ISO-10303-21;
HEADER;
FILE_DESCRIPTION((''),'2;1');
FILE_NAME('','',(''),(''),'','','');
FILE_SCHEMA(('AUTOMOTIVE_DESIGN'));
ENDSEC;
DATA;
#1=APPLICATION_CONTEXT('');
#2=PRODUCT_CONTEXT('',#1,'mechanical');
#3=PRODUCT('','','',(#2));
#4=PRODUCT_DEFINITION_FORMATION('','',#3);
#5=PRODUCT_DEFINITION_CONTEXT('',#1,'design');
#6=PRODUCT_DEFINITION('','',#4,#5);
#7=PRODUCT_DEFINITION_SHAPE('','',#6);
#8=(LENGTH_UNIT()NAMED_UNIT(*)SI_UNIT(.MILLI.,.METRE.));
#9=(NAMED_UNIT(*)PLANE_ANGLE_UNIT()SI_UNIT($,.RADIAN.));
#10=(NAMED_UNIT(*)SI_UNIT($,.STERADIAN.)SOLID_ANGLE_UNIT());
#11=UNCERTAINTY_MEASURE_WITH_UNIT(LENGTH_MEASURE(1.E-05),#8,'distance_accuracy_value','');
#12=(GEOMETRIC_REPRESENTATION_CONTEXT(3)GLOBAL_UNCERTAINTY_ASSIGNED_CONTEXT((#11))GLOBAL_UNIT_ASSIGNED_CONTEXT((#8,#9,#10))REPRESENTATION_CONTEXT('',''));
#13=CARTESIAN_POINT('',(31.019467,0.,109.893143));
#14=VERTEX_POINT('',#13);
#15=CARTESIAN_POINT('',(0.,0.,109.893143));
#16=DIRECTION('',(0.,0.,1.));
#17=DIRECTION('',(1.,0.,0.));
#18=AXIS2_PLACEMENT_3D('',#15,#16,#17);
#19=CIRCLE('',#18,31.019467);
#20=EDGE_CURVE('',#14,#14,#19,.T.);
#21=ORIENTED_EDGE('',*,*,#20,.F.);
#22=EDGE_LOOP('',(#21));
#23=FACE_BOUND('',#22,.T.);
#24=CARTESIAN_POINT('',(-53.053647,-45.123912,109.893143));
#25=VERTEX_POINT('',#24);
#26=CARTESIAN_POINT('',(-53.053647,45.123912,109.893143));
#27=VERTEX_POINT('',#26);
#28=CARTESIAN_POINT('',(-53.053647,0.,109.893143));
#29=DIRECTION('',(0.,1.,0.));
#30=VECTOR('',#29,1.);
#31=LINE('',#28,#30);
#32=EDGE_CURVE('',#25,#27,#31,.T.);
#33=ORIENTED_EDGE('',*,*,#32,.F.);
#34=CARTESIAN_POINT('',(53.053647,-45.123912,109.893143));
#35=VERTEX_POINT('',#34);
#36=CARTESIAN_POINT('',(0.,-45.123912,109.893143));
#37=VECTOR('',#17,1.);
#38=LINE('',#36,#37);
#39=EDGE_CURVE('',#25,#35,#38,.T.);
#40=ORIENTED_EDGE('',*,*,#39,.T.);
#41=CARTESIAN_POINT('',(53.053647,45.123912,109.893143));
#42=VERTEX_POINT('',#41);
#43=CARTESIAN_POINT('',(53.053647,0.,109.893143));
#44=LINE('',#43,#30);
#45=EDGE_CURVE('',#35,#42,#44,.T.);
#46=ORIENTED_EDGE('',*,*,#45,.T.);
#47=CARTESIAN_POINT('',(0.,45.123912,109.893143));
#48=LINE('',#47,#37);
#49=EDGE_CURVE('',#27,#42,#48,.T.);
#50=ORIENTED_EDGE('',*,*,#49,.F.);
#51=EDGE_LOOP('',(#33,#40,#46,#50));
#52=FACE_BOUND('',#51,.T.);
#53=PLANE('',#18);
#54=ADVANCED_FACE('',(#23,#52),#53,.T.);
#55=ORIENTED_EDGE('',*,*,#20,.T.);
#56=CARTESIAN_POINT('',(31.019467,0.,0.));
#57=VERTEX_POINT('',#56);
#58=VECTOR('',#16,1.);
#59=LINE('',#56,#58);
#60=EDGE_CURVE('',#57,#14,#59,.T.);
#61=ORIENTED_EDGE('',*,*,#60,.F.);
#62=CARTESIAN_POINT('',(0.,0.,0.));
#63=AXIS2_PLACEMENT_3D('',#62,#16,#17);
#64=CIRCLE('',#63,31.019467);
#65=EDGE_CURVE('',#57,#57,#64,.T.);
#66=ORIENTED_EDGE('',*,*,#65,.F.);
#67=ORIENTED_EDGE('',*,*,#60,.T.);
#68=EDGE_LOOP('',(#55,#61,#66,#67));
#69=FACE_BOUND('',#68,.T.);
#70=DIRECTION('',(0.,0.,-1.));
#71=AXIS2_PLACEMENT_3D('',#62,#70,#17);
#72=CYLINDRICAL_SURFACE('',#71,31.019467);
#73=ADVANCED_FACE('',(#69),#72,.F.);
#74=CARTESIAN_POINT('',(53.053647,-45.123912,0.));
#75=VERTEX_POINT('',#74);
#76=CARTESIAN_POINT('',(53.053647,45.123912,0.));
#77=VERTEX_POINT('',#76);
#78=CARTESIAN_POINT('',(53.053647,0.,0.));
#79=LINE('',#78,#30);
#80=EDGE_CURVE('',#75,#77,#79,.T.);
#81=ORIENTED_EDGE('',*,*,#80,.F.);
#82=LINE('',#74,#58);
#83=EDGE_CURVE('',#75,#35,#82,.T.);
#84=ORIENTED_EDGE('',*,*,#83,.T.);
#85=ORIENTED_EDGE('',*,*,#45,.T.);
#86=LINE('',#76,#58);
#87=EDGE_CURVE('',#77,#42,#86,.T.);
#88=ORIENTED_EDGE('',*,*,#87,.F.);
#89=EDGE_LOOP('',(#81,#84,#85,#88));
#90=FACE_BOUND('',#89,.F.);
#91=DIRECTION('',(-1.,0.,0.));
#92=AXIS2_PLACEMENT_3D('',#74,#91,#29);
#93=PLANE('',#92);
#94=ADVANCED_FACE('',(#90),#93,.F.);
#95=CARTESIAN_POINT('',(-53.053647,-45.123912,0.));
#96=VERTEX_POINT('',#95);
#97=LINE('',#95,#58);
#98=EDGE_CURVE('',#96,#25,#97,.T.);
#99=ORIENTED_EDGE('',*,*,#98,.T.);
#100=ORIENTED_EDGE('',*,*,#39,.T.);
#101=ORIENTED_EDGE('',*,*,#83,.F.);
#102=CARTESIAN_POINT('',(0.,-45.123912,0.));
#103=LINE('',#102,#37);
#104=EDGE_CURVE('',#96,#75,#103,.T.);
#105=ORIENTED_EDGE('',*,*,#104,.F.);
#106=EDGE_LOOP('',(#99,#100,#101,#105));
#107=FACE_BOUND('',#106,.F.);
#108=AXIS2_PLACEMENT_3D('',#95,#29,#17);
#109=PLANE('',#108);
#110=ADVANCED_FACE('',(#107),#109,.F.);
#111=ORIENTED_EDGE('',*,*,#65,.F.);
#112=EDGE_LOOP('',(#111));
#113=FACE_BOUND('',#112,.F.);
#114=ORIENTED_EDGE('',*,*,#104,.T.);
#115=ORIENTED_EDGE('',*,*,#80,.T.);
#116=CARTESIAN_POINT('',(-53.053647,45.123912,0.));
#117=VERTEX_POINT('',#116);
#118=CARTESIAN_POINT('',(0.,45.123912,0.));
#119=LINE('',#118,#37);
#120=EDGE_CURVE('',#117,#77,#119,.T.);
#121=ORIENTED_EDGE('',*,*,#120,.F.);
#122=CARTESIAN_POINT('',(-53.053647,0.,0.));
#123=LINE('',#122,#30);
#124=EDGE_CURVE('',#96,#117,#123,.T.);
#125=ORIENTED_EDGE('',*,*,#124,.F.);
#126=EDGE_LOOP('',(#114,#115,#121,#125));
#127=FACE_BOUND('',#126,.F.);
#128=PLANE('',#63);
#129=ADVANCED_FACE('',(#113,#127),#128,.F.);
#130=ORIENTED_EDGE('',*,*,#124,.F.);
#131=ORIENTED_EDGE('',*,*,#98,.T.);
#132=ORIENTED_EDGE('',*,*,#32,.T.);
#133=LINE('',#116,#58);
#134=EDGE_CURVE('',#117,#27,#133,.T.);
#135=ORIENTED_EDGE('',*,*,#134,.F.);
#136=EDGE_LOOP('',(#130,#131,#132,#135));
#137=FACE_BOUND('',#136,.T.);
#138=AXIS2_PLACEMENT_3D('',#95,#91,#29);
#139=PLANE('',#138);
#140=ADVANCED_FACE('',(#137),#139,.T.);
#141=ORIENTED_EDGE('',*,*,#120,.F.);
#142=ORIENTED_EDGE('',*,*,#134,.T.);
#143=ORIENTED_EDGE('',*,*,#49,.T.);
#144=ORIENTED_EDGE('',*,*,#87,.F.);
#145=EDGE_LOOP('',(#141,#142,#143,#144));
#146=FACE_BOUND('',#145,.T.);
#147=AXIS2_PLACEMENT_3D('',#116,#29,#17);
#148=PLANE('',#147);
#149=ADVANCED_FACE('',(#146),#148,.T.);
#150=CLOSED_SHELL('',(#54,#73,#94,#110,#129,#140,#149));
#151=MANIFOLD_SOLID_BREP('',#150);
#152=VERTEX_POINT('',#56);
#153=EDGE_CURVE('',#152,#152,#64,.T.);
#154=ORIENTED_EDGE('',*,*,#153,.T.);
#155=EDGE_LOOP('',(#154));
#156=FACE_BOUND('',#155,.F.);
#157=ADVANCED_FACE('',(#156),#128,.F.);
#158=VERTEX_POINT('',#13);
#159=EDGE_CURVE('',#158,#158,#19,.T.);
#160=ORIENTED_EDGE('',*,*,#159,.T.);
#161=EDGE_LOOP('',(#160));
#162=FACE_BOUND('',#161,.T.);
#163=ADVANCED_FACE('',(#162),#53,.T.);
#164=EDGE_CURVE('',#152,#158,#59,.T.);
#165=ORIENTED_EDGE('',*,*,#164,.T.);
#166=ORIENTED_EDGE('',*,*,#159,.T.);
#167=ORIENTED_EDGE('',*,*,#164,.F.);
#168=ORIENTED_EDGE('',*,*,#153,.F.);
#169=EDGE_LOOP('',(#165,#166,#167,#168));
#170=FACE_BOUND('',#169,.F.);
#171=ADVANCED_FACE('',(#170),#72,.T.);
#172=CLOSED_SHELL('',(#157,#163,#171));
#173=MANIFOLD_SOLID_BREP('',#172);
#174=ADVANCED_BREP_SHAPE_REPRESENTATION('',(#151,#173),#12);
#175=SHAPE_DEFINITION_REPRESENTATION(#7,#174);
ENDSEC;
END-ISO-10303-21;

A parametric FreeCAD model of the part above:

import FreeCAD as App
import Part
import Sketcher
from FreeCAD import Vector
Q = App.Units.Quantity

doc = App.newDocument("Part")
body = doc.addObject("PartDesign::Body", "Body")

sketch1 = body.newObject("Sketcher::SketchObject", "Sketch")
sketch1.AttachmentSupport = (doc.getObject("XY_Plane"), [""])
sketch1.MapMode = "FlatFace"
sketch1.addGeometry(Part.Circle(Vector(0, 0, 0), Vector(0, 0, 1), 31), False)
sketch1.addConstraint(Sketcher.Constraint("Coincident", 0, 3, -1, 1))
sketch1.addConstraint(Sketcher.Constraint("Diameter", 0, Q("62.038934 mm")))
pad1 = body.newObject("PartDesign::Pad", "Pad")
pad1.Profile = sketch1
pad1.Length = 109.893143
body2 = doc.addObject("PartDesign::Body", "Body001")

sketch2 = body2.newObject("Sketcher::SketchObject", "Sketch001")
sketch2.AttachmentSupport = (doc.getObject("XY_Plane001"), [""])
sketch2.MapMode = "FlatFace"
sketch2.addGeometry(Part.LineSegment(Vector(-53, 45, 0), Vector(-53, -45, 0)), False)
sketch2.addGeometry(Part.LineSegment(Vector(-53, -45, 0), Vector(53, -45, 0)), False)
sketch2.addGeometry(Part.LineSegment(Vector(53, -45, 0), Vector(53, 45, 0)), False)
sketch2.addGeometry(Part.LineSegment(Vector(53, 45, 0), Vector(-53, 45, 0)), False)
sketch2.addGeometry(Part.Circle(Vector(0, 0, 0), Vector(0, 0, 1), 31), False)
sketch2.addConstraint(Sketcher.Constraint("Coincident", 0, 2, 1, 1))
sketch2.addConstraint(Sketcher.Constraint("Coincident", 1, 2, 2, 1))
sketch2.addConstraint(Sketcher.Constraint("Coincident", 2, 2, 3, 1))
sketch2.addConstraint(Sketcher.Constraint("Coincident", 3, 2, 0, 1))
sketch2.addConstraint(Sketcher.Constraint("Vertical", 0))
sketch2.addConstraint(Sketcher.Constraint("Horizontal", 1))
sketch2.addConstraint(Sketcher.Constraint("Vertical", 2))
sketch2.addConstraint(Sketcher.Constraint("Horizontal", 3))
sketch2.addConstraint(Sketcher.Constraint("Coincident", 4, 3, -1, 1))
sketch2.addConstraint(Sketcher.Constraint("Symmetric", 0, 2, 2, 2, -1, 1))
sketch2.addConstraint(Sketcher.Constraint("Diameter", 4, Q("62.038934 mm")))
sketch2.addConstraint(Sketcher.Constraint("DistanceX", 1, 1, 1, 2, Q("106.107295 mm")))
sketch2.addConstraint(Sketcher.Constraint("DistanceY", 0, 2, 0, 1, Q("90.247825 mm")))
pad2 = body2.newObject("PartDesign::Pad", "Pad001")
pad2.Profile = sketch2
pad2.Length = 109.893143

doc.recompute()
